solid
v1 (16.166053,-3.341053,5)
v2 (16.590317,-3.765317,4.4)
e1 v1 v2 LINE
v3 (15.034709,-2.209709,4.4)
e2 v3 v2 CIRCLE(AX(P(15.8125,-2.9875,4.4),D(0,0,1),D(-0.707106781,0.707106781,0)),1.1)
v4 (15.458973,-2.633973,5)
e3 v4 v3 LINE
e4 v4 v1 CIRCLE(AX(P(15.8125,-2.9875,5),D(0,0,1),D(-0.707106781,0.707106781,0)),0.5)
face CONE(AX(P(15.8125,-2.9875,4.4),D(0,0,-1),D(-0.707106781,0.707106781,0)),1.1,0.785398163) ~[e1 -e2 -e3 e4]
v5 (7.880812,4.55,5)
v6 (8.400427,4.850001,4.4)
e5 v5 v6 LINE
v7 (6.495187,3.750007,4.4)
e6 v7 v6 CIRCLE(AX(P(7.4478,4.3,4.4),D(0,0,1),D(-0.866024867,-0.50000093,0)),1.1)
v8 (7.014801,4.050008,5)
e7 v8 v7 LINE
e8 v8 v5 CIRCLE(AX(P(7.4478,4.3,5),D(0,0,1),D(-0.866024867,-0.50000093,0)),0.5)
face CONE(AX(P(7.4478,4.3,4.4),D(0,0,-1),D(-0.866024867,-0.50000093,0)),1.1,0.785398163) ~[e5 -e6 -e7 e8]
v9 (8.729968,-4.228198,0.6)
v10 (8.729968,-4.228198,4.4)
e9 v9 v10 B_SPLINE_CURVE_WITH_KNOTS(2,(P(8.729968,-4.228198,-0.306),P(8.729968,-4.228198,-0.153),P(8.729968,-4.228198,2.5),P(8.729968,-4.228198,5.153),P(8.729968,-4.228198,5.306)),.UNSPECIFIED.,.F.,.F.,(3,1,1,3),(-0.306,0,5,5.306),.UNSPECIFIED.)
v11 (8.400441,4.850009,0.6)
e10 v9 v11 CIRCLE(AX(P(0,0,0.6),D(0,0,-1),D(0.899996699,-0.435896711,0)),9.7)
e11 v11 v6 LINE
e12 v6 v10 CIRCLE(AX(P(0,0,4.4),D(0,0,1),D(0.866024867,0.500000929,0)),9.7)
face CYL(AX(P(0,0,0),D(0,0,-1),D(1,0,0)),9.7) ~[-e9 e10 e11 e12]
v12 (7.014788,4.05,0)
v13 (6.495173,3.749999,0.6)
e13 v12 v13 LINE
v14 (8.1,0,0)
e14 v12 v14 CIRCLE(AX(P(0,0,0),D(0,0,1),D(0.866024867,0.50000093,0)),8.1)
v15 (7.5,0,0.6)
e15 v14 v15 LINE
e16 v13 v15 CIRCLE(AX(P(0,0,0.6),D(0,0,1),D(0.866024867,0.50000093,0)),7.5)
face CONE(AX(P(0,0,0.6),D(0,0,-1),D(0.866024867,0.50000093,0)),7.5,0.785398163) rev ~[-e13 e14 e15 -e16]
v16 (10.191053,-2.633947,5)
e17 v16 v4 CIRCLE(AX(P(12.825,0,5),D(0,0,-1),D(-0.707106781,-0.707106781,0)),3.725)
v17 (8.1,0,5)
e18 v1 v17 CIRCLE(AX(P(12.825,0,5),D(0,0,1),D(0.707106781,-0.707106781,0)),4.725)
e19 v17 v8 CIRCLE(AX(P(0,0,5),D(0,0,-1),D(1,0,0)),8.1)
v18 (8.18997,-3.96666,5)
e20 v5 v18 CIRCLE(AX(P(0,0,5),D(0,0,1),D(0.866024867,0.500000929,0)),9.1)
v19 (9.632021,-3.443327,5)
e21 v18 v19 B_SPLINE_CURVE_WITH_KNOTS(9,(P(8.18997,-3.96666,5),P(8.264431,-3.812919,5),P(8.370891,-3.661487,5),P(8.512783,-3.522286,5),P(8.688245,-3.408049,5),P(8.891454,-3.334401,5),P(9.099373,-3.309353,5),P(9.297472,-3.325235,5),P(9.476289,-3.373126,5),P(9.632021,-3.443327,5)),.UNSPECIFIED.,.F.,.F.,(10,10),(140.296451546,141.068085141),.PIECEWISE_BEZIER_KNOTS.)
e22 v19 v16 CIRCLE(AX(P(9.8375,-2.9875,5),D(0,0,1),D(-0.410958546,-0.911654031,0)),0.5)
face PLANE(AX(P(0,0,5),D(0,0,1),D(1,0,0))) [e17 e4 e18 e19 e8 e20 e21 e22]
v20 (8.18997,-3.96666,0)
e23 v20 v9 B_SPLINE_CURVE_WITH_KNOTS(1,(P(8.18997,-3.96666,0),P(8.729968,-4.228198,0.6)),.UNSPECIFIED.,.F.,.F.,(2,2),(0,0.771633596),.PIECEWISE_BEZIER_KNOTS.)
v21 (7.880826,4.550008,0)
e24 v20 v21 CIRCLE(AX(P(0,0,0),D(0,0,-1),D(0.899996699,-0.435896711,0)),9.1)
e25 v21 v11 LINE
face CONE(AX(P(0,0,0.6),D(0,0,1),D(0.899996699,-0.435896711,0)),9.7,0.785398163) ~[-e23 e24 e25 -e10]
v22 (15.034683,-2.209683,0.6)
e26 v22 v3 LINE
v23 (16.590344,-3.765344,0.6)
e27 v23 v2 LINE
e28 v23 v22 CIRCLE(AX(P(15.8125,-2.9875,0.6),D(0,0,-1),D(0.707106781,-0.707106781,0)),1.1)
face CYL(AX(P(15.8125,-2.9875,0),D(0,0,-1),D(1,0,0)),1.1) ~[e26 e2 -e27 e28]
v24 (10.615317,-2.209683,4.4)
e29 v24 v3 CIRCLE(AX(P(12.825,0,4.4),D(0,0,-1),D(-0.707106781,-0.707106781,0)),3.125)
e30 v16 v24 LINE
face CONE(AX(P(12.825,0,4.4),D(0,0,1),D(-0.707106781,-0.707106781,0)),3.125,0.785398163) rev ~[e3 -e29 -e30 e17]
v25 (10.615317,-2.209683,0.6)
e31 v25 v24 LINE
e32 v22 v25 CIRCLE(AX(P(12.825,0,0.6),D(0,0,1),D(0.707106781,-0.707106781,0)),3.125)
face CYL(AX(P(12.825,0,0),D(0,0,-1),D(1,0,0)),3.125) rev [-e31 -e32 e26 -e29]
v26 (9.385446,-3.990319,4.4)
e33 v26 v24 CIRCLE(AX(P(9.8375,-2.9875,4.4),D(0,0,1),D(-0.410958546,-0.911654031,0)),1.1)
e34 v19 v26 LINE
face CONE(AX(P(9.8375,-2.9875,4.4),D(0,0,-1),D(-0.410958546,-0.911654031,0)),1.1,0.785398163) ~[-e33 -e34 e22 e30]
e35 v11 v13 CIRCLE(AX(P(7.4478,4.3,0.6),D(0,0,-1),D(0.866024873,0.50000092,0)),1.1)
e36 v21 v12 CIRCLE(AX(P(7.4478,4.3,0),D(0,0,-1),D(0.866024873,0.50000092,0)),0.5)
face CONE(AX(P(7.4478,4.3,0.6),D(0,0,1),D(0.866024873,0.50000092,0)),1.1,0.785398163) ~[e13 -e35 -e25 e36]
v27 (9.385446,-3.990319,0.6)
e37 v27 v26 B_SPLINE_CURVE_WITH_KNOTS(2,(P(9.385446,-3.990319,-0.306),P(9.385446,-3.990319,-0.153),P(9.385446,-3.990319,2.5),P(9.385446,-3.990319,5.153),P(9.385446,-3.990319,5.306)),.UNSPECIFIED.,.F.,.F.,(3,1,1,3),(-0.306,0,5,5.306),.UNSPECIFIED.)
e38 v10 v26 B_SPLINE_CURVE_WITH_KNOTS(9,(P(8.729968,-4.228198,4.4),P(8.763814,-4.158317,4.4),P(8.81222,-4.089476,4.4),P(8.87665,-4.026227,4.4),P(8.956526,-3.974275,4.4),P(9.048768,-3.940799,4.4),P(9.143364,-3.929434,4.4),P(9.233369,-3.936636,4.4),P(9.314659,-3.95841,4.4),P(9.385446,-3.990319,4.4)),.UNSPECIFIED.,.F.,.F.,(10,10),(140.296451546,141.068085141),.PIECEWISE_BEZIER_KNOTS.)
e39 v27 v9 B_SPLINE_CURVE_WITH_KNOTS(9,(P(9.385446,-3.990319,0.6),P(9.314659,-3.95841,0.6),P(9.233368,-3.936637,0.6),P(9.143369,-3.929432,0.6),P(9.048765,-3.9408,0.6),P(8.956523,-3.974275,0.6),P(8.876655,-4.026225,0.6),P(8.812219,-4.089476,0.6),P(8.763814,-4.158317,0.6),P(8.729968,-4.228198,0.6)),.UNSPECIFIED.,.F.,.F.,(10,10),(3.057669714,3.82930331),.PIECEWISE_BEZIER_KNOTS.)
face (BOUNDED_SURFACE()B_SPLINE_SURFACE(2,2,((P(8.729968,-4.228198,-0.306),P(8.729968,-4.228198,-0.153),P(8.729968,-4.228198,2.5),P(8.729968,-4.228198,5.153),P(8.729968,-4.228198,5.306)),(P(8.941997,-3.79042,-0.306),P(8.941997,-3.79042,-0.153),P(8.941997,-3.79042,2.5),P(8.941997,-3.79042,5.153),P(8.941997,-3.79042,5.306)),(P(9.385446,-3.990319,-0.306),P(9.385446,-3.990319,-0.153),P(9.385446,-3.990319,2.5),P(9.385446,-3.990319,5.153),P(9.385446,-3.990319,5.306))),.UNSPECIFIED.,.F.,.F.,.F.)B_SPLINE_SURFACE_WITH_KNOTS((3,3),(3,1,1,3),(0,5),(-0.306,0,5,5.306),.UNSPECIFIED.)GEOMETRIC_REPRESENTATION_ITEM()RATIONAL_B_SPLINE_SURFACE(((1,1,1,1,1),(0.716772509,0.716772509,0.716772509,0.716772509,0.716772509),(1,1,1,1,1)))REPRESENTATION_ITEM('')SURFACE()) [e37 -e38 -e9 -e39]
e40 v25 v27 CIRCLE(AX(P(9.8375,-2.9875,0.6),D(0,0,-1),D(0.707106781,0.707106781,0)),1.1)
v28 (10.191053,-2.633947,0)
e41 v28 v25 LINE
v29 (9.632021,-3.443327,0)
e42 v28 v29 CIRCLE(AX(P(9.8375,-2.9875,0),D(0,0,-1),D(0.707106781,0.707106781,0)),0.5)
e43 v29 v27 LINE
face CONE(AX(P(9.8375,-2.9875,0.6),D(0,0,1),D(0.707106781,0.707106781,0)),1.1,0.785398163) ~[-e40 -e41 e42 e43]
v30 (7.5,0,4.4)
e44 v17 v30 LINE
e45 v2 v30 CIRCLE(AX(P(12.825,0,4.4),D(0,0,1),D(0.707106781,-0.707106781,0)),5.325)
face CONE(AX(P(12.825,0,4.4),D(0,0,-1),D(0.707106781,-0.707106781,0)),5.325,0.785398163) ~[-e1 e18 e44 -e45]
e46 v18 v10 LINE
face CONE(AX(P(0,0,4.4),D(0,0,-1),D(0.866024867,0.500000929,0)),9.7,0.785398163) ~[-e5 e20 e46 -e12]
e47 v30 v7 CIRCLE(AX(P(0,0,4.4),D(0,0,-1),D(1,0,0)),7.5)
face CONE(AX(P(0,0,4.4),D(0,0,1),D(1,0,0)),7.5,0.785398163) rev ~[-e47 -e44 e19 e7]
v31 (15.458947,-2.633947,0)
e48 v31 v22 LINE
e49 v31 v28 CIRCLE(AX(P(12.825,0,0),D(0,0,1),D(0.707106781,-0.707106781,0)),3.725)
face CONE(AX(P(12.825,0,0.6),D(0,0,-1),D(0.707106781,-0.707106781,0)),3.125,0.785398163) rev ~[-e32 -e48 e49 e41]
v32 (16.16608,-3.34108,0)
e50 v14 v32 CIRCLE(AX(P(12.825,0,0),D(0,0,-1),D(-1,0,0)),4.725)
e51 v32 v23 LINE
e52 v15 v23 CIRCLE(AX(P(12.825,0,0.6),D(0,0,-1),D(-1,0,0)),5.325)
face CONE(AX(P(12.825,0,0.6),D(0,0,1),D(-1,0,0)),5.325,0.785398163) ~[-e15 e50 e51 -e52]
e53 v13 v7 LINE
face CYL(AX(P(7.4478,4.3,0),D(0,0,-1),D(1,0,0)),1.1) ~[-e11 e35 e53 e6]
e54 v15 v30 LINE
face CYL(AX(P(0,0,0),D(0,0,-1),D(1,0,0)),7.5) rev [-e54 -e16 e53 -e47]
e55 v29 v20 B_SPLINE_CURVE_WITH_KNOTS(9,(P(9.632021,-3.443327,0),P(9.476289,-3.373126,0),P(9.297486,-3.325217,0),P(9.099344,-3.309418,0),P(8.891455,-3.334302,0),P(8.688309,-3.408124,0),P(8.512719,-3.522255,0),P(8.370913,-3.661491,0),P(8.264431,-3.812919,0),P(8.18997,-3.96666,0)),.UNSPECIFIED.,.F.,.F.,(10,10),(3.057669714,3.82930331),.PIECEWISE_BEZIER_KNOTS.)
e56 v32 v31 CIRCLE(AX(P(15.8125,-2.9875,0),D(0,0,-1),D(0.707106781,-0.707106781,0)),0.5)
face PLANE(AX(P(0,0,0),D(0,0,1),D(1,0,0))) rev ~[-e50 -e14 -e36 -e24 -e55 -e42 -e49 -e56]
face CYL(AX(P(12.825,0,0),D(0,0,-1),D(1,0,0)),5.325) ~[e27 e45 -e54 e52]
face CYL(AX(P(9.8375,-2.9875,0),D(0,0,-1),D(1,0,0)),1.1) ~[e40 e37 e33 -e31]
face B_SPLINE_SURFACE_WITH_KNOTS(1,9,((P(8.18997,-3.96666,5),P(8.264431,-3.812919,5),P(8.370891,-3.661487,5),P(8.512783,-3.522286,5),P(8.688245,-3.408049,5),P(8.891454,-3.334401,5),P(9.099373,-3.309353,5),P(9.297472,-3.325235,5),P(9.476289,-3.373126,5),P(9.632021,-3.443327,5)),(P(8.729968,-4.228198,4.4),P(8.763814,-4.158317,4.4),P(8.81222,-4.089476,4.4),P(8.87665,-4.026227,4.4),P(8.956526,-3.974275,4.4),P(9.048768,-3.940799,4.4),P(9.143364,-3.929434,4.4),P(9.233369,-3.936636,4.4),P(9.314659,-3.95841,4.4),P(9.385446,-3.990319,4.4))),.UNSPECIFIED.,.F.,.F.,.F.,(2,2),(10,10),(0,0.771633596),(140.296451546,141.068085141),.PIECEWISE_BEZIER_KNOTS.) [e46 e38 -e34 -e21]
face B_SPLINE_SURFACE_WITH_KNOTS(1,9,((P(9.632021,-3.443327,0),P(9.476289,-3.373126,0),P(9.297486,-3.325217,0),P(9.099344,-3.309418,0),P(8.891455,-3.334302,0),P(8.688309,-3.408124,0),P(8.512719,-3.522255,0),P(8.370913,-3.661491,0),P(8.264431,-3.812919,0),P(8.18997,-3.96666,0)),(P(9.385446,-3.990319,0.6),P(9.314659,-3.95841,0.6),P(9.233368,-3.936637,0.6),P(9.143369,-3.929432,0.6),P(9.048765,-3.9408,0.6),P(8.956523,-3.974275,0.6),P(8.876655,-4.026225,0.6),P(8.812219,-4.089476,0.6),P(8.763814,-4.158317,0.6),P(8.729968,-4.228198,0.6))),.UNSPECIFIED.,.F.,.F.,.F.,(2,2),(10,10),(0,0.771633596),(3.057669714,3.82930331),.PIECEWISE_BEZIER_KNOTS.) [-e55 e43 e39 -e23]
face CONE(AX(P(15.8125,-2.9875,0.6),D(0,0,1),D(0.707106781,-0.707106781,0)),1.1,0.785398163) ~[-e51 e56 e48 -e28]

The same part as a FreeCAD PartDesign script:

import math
import FreeCAD as App
import Part
import Sketcher


def edges_at(feature, points):
    """Names of the edges that pass closest to the given points."""
    edges = feature.Shape.Edges
    near = lambda p: min(range(len(edges)), key=lambda i: edges[i].distToShape(Part.Vertex(*p))[0])
    return sorted({f"Edge{near(p) + 1}" for p in points})

doc = App.newDocument("Part")
body = doc.addObject("PartDesign::Body", "Body")

sketch1 = doc.addObject("Sketcher::SketchObject", "Sketch")
body.addObject(sketch1)
sketch1.AttachmentSupport = (doc.XY_Plane, [""])
sketch1.MapMode = "FlatFace"
sketch1.addGeometry([
    Part.ArcOfCircle(Part.Circle(App.Vector(0, 0, 0), App.Vector(0, 0, 1), 9.7), math.radians(30), math.radians(338)),
    Part.ArcOfCircle(Part.Circle(App.Vector(12.82, 0, 0), App.Vector(0, 0, 1), 5.33), math.radians(-136.3), math.radians(-135)),
    Part.ArcOfCircle(Part.Circle(App.Vector(9.84, -2.99, 0), App.Vector(0, 0, 1), 1.1), math.radians(-135), math.radians(45)),
    Part.ArcOfCircle(Part.Circle(App.Vector(12.82, 0, 0), App.Vector(0, 0, 1), 3.12), math.radians(-45), math.radians(225)),
    Part.ArcOfCircle(Part.Circle(App.Vector(15.81, -2.99, 0), App.Vector(0, 0, 1), 1.1), math.radians(135), math.radians(315)),
    Part.ArcOfCircle(Part.Circle(App.Vector(12.82, 0, 0), App.Vector(0, 0, 1), 5.33), math.radians(-45), math.radians(180)),
    Part.ArcOfCircle(Part.Circle(App.Vector(0, 0, 0), App.Vector(0, 0, 1), 7.5), math.radians(30), math.radians(360)),
    Part.ArcOfCircle(Part.Circle(App.Vector(7.45, 4.3, 0), App.Vector(0, 0, 1), 1.1), math.radians(-150), math.radians(30)),
], False)
sketch1.addConstraint([
    Sketcher.Constraint("Coincident", 0, 2, 1, 1),
    Sketcher.Constraint("Tangent", 1, 2, 2, 1),
    Sketcher.Constraint("Tangent", 2, 2, 3, 2),
    Sketcher.Constraint("Tangent", 3, 1, 4, 1),
    Sketcher.Constraint("Tangent", 4, 2, 5, 1),
    Sketcher.Constraint("Tangent", 5, 2, 6, 2),
    Sketcher.Constraint("Tangent", 6, 1, 7, 1),
    Sketcher.Constraint("Tangent", 7, 2, 0, 1),
    Sketcher.Constraint("Coincident", 0, 3, -1, 1),
    Sketcher.Constraint("Coincident", 6, 3, -1, 1),
    Sketcher.Constraint("Coincident", 3, 3, 1, 3),
    Sketcher.Constraint("Coincident", 5, 3, 1, 3),
    Sketcher.Constraint("Equal", 2, 4),
    Sketcher.Constraint("Equal", 4, 7),
    Sketcher.Constraint("PointOnObject", 1, 3, -1),
    Sketcher.Constraint("Horizontal", 2, 3, 4, 3),
    Sketcher.Constraint("Radius", 2, 1.1),
    Sketcher.Constraint("Radius", 6, 7.5),
    Sketcher.Constraint("Radius", 3, 3.125),
    Sketcher.Constraint("DistanceY", -1, 1, 7, 3, 4.3),
    Sketcher.Constraint("DistanceX", 0, 2, 2, 2, 1.64),
])
pad1 = doc.addObject("PartDesign::Pad", "Pad")
body.addObject(pad1)
pad1.Profile = sketch1
pad1.Length = 5
doc.recompute()

fillet = doc.addObject("PartDesign::Fillet", "Fillet")
body.addObject(fillet)
fillet.Base = (pad1, edges_at(pad1, [(8.975, -3.679, 2.5)]))
fillet.Radius = 0.5
doc.recompute()

chamfer = doc.addObject("PartDesign::Chamfer", "Chamfer")
body.addObject(chamfer)
chamfer.Base = (fillet, edges_at(fillet, [
    (10.743, -3.613, 5),
    (9.009, -3.976, 5),
    (-9.694, -0.352, 5),
    (7.998, 3.347, 5),
    (-7.244, -1.941, 5),
    (14.863, 4.92, 5),
    (15.035, -3.765, 5),
    (12.825, 3.125, 5),
    (10.743, -3.613, 0),
    (9.009, -3.976, 0),
    (-9.694, -0.352, 0),
    (7.998, 3.347, 0),
    (-7.244, -1.941, 0),
    (14.863, 4.92, 0),
    (15.035, -3.765, 0),
    (12.825, 3.125, 0),
]))
chamfer.Size = 0.6

doc.recompute()
